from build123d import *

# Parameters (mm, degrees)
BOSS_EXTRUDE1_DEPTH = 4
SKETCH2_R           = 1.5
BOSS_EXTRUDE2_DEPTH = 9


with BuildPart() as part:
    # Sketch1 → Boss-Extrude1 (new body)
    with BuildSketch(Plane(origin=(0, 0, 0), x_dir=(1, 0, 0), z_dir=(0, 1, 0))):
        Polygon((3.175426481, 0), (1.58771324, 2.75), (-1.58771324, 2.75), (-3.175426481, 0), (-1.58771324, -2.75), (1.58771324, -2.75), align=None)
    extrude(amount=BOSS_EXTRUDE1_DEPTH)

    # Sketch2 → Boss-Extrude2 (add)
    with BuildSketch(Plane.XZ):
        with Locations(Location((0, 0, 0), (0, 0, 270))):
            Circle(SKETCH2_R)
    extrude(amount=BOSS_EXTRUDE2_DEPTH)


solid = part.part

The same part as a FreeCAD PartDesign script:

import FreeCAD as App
import Part
import Sketcher
from FreeCAD import Vector
Q = App.Units.Quantity

doc = App.newDocument("Part")
body = doc.addObject("PartDesign::Body", "Body")

# Sketch on XZ plane
sketch1 = body.newObject("Sketcher::SketchObject", "Sketch")
sketch1.AttachmentSupport = (doc.getObject("XZ_Plane"), [""])
sketch1.MapMode = "FlatFace"
sketch1.addGeometry(Part.LineSegment(Vector(3.2, 0, 0), Vector(1.6, -2.8, 0)), False)
sketch1.addGeometry(Part.LineSegment(Vector(1.6, -2.8, 0), Vector(-1.6, -2.8, 0)), False)
sketch1.addGeometry(Part.LineSegment(Vector(-1.6, -2.8, 0), Vector(-3.2, 0, 0)), False)
sketch1.addGeometry(Part.LineSegment(Vector(-3.2, 0, 0), Vector(-1.6, 2.8, 0)), False)
sketch1.addGeometry(Part.LineSegment(Vector(-1.6, 2.8, 0), Vector(1.6, 2.8, 0)), False)
sketch1.addGeometry(Part.LineSegment(Vector(1.6, 2.8, 0), Vector(3.2, 0, 0)), False)
sketch1.addConstraint(Sketcher.Constraint("Coincident", 0, 2, 1, 1))
sketch1.addConstraint(Sketcher.Constraint("Coincident", 1, 2, 2, 1))
sketch1.addConstraint(Sketcher.Constraint("Coincident", 2, 2, 3, 1))
sketch1.addConstraint(Sketcher.Constraint("Coincident", 3, 2, 4, 1))
sketch1.addConstraint(Sketcher.Constraint("Coincident", 4, 2, 5, 1))
sketch1.addConstraint(Sketcher.Constraint("Coincident", 5, 2, 0, 1))
sketch1.addConstraint(Sketcher.Constraint("Horizontal", 1))
sketch1.addConstraint(Sketcher.Constraint("Horizontal", 4))
sketch1.addConstraint(Sketcher.Constraint("Symmetric", 0, 2, 3, 2, -1, 1))
sketch1.addConstraint(Sketcher.Constraint("Symmetric", 2, 2, 5, 2, -1, 1))
sketch1.addConstraint(Sketcher.Constraint("PointOnObject", 2, 2, -1))
sketch1.addConstraint(Sketcher.Constraint("Parallel", 2, 5))
sketch1.addConstraint(Sketcher.Constraint("Vertical", 1, 2, 3, 2))
sketch1.addConstraint(Sketcher.Constraint("Angle", 0, Q("-120 deg")))
sketch1.addConstraint(Sketcher.Constraint("DistanceY", 1, 2, 3, 2, 5.5))
sketch1.addConstraint(Sketcher.Constraint("DistanceX", 1, 2, 1, 1, 3.175426))
pad1 = body.newObject("PartDesign::Pad", "Pad")
pad1.Profile = sketch1
pad1.Length = 4
pad1.Reversed = True

# Sketch on XZ plane
sketch2 = body.newObject("Sketcher::SketchObject", "Sketch001")
sketch2.AttachmentSupport = (doc.getObject("XZ_Plane"), [""])
sketch2.MapMode = "FlatFace"
sketch2.addGeometry(Part.Circle(Vector(0, 0, 0), Vector(0, 0, 1), 1.5), False)
sketch2.addConstraint(Sketcher.Constraint("Coincident", 0, 3, -1, 1))
sketch2.addConstraint(Sketcher.Constraint("Diameter", 0, 3.0))
pad2 = body.newObject("PartDesign::Pad", "Pad001")
pad2.Profile = sketch2
pad2.Length = 9

doc.recompute()
